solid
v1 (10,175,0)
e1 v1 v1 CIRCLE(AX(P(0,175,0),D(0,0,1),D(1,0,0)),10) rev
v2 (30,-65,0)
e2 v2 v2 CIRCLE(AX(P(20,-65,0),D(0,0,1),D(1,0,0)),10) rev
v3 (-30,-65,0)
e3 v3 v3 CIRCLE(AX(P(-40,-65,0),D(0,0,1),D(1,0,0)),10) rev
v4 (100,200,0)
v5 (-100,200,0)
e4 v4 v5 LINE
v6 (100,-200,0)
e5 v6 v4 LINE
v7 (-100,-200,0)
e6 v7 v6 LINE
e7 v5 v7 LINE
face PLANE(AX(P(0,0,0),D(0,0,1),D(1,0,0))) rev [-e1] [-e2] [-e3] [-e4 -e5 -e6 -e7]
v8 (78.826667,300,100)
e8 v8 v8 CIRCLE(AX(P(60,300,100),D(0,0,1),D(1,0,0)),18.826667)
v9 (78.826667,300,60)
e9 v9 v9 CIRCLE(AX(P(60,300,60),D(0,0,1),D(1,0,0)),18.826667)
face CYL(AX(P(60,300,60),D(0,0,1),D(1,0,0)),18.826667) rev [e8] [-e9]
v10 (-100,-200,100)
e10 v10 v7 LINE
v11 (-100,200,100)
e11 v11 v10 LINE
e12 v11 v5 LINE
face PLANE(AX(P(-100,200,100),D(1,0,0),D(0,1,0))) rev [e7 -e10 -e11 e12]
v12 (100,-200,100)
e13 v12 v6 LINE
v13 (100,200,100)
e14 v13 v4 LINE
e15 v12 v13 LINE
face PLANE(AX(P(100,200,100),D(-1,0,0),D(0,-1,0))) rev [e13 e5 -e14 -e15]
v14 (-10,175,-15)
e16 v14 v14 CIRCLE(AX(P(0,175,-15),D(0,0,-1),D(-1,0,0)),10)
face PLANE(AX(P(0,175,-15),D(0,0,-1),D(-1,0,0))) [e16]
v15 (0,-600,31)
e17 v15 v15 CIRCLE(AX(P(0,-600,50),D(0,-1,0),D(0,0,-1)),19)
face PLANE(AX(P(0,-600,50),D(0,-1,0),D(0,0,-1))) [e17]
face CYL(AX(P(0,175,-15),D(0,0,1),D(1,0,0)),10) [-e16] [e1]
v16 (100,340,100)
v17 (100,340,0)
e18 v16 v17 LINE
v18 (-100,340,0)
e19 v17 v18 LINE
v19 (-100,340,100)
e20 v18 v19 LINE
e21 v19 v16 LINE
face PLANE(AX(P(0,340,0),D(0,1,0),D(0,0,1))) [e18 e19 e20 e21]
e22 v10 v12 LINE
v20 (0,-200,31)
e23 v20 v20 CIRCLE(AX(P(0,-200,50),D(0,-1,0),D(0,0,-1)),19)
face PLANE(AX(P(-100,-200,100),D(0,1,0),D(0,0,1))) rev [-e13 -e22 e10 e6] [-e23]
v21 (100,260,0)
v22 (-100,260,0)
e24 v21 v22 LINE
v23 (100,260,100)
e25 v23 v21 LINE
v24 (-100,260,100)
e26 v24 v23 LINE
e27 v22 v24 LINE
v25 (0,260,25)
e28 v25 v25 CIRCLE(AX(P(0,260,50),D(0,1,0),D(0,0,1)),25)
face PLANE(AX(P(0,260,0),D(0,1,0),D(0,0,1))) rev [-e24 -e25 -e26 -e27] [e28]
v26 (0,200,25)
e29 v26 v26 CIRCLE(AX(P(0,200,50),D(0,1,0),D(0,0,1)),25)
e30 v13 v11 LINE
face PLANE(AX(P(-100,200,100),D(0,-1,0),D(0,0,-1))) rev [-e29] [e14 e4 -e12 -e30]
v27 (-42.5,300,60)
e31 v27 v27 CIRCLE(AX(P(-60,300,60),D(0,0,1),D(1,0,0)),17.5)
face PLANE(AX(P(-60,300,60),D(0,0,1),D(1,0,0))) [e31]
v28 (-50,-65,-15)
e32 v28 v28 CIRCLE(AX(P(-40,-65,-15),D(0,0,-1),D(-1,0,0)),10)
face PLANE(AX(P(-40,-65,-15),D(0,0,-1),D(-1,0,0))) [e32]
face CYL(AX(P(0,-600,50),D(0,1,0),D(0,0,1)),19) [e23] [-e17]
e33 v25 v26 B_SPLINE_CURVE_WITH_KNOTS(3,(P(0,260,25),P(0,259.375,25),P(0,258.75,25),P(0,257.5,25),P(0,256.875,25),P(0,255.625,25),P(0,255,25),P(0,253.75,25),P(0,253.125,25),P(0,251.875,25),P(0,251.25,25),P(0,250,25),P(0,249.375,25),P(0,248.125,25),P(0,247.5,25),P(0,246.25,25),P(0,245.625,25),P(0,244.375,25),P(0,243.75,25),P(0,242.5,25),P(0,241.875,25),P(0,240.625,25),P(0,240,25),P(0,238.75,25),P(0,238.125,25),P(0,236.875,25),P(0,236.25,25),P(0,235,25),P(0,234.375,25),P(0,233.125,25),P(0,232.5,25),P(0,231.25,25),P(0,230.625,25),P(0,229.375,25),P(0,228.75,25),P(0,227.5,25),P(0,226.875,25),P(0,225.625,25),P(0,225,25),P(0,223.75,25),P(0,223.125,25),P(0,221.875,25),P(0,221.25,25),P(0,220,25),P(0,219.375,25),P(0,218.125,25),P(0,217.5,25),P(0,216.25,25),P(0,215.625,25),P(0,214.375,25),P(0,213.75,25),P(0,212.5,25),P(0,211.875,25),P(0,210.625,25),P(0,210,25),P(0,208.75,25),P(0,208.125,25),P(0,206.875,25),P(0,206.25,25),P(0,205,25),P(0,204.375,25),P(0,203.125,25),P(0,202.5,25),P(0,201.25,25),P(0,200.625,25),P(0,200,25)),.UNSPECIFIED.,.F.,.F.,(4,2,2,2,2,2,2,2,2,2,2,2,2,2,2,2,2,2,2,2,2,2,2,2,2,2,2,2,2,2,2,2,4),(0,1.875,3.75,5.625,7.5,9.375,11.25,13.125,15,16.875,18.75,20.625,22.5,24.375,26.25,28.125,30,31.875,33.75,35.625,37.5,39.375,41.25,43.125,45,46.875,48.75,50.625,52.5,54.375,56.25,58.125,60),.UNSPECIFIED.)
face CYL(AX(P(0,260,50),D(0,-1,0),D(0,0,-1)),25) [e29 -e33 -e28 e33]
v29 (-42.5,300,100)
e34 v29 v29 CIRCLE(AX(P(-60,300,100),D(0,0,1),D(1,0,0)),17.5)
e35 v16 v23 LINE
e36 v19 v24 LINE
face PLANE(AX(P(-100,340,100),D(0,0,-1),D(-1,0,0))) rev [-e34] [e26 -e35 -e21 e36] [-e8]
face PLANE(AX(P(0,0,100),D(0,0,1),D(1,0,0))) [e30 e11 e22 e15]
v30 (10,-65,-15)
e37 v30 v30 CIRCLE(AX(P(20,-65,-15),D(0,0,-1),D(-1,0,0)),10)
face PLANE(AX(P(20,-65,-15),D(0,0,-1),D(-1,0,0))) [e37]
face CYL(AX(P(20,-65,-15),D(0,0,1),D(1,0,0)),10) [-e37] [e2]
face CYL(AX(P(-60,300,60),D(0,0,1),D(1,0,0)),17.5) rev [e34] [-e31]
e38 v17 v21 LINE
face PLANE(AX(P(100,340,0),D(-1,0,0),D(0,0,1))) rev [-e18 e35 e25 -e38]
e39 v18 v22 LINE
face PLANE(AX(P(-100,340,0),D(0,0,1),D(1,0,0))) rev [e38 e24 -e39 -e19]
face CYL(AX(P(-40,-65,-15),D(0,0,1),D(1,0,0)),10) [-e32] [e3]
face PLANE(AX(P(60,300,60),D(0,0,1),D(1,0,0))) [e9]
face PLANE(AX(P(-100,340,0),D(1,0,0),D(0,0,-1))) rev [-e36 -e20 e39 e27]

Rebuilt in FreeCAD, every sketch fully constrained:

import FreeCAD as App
import Part
import Sketcher

V = App.Vector
Q = App.Units.Quantity


def add_polygon(sketch, points):
    """Adds a closed chain of lines whose ends are joined by coincident constraints."""
    first, n = sketch.GeometryCount, len(points)
    for a, b in zip(points, points[1:] + points[:1]):
        sketch.addGeometry(Part.LineSegment(App.Vector(*a, 0), App.Vector(*b, 0)), False)
    for i in range(n):
        sketch.addConstraint(Sketcher.Constraint("Coincident", first + i, 2, first + (i + 1) % n, 1))

doc = App.newDocument("Part")
body = doc.addObject("PartDesign::Body", "Body")

# Sketch on XY plane
sketch1 = body.newObject("Sketcher::SketchObject", "Sketch")
sketch1.AttachmentSupport = (doc.getObject("XY_Plane"), [""])
sketch1.MapMode = "FlatFace"
add_polygon(sketch1, [(-100, 200), (-100, -200), (100, -200), (100, 200)])  # lines 0-3
sketch1.addConstraint([
    Sketcher.Constraint("Vertical", 0),
    Sketcher.Constraint("Horizontal", 1),
    Sketcher.Constraint("Vertical", 2),
    Sketcher.Constraint("Horizontal", 3),
    Sketcher.Constraint("Symmetric", 0, 2, 2, 2, -1, 1),
    Sketcher.Constraint("DistanceX", 1, 1, 1, 2, Q("200 mm")),
    Sketcher.Constraint("DistanceY", 0, 2, 0, 1, Q("400 mm")),
])
pad1 = body.newObject("PartDesign::Pad", "Pad")
pad1.Profile = sketch1
pad1.Length = 100

# Sketch on XZ plane
sketch2 = body.newObject("Sketcher::SketchObject", "Sketch001")
sketch2.AttachmentSupport = (doc.getObject("XZ_Plane"), [""])
sketch2.MapMode = "FlatFace"
sketch2.AttachmentOffset = App.Placement(V(0, 0, -200), App.Rotation())
sketch2.addGeometry(Part.Circle(V(0, 50, 0), V(0, 0, 1), 25), False)
sketch2.addConstraint([
    Sketcher.Constraint("PointOnObject", 0, 3, -2),
    Sketcher.Constraint("Diameter", 0, Q("50 mm")),
    Sketcher.Constraint("DistanceY", -1, 1, 0, 3, Q("50 mm")),
])
pad2 = body.newObject("PartDesign::Pad", "Pad001")
pad2.Profile = sketch2
pad2.Length = 60
pad2.Reversed = True

# Sketch on XZ plane
sketch3 = body.newObject("Sketcher::SketchObject", "Sketch002")
sketch3.AttachmentSupport = (doc.getObject("XZ_Plane"), [""])
sketch3.MapMode = "FlatFace"
sketch3.AttachmentOffset = App.Placement(V(0, 0, -260), App.Rotation())
add_polygon(sketch3, [(-100, 0), (-100, 100), (100, 100), (100, 0)])  # lines 0-3
sketch3.addConstraint([
    Sketcher.Constraint("Vertical", 0),
    Sketcher.Constraint("Horizontal", 1),
    Sketcher.Constraint("Vertical", 2),
    Sketcher.Constraint("Horizontal", 3),
    Sketcher.Constraint("Symmetric", 2, 2, 3, 2, -1, 1),
    Sketcher.Constraint("DistanceX", 1, 1, 1, 2, Q("200 mm")),
    Sketcher.Constraint("DistanceY", 0, 1, 0, 2, Q("100 mm")),
])
pad3 = body.newObject("PartDesign::Pad", "Pad002")
pad3.Profile = sketch3
pad3.Length = 80
pad3.Reversed = True

# Sketch on XY plane
sketch4 = body.newObject("Sketcher::SketchObject", "Sketch003")
sketch4.AttachmentSupport = (doc.getObject("XY_Plane"), [""])
sketch4.MapMode = "FlatFace"
sketch4.AttachmentOffset = App.Placement(V(0, 0, 100), App.Rotation())
sketch4.addGeometry([
    Part.Circle(V(-60, 300, 0), V(0, 0, 1), 17.5),
    Part.Circle(V(60, 300, 0), V(0, 0, 1), 18.826667),
], False)
sketch4.addConstraint([
    Sketcher.Constraint("Symmetric", 0, 3, 1, 3, -2),
    Sketcher.Constraint("Diameter", 0, Q("35 mm")),
    Sketcher.Constraint("DistanceX", 0, 3, -1, 1, Q("60 mm")),
    Sketcher.Constraint("DistanceY", -1, 1, 0, 3, Q("300 mm")),
    Sketcher.Constraint("Diameter", 1, Q("37.653334 mm")),
])
pocket1 = body.newObject("PartDesign::Pocket", "Pocket")
pocket1.Profile = sketch4
pocket1.Length = 40

# Sketch on XZ plane
sketch5 = body.newObject("Sketcher::SketchObject", "Sketch004")
sketch5.AttachmentSupport = (doc.getObject("XZ_Plane"), [""])
sketch5.MapMode = "FlatFace"
sketch5.AttachmentOffset = App.Placement(V(0, 0, 200), App.Rotation())
sketch5.addGeometry(Part.Circle(V(0, 50, 0), V(0, 0, 1), 19), False)
sketch5.addConstraint([
    Sketcher.Constraint("PointOnObject", 0, 3, -2),
    Sketcher.Constraint("Diameter", 0, Q("38 mm")),
    Sketcher.Constraint("DistanceY", -1, 1, 0, 3, Q("50 mm")),
])
pad4 = body.newObject("PartDesign::Pad", "Pad003")
pad4.Profile = sketch5
pad4.Length = 400

# Sketch on XY plane
sketch6 = body.newObject("Sketcher::SketchObject", "Sketch005")
sketch6.AttachmentSupport = (doc.getObject("XY_Plane"), [""])
sketch6.MapMode = "FlatFace"
sketch6.addGeometry([
    Part.Circle(V(0, 175, 0), V(0, 0, 1), 10),
    Part.Circle(V(20, -65, 0), V(0, 0, 1), 10),
    Part.Circle(V(-40, -65, 0), V(0, 0, 1), 10),
], False)
sketch6.addConstraint([
    Sketcher.Constraint("Equal", 0, 1),
    Sketcher.Constraint("Equal", 1, 2),
    Sketcher.Constraint("PointOnObject", 0, 3, -2),
    Sketcher.Constraint("Horizontal", 1, 3, 2, 3),
    Sketcher.Constraint("Diameter", 0, Q("20 mm")),
    Sketcher.Constraint("DistanceY", -1, 1, 0, 3, Q("175 mm")),
    Sketcher.Constraint("DistanceX", -1, 1, 1, 3, Q("20 mm")),
    Sketcher.Constraint("DistanceY", 1, 3, -1, 1, Q("65 mm")),
    Sketcher.Constraint("DistanceX", 2, 3, -1, 1, Q("40 mm")),
])
pad5 = body.newObject("PartDesign::Pad", "Pad004")
pad5.Profile = sketch6
pad5.Length = 15
pad5.Reversed = True

doc.recompute()
